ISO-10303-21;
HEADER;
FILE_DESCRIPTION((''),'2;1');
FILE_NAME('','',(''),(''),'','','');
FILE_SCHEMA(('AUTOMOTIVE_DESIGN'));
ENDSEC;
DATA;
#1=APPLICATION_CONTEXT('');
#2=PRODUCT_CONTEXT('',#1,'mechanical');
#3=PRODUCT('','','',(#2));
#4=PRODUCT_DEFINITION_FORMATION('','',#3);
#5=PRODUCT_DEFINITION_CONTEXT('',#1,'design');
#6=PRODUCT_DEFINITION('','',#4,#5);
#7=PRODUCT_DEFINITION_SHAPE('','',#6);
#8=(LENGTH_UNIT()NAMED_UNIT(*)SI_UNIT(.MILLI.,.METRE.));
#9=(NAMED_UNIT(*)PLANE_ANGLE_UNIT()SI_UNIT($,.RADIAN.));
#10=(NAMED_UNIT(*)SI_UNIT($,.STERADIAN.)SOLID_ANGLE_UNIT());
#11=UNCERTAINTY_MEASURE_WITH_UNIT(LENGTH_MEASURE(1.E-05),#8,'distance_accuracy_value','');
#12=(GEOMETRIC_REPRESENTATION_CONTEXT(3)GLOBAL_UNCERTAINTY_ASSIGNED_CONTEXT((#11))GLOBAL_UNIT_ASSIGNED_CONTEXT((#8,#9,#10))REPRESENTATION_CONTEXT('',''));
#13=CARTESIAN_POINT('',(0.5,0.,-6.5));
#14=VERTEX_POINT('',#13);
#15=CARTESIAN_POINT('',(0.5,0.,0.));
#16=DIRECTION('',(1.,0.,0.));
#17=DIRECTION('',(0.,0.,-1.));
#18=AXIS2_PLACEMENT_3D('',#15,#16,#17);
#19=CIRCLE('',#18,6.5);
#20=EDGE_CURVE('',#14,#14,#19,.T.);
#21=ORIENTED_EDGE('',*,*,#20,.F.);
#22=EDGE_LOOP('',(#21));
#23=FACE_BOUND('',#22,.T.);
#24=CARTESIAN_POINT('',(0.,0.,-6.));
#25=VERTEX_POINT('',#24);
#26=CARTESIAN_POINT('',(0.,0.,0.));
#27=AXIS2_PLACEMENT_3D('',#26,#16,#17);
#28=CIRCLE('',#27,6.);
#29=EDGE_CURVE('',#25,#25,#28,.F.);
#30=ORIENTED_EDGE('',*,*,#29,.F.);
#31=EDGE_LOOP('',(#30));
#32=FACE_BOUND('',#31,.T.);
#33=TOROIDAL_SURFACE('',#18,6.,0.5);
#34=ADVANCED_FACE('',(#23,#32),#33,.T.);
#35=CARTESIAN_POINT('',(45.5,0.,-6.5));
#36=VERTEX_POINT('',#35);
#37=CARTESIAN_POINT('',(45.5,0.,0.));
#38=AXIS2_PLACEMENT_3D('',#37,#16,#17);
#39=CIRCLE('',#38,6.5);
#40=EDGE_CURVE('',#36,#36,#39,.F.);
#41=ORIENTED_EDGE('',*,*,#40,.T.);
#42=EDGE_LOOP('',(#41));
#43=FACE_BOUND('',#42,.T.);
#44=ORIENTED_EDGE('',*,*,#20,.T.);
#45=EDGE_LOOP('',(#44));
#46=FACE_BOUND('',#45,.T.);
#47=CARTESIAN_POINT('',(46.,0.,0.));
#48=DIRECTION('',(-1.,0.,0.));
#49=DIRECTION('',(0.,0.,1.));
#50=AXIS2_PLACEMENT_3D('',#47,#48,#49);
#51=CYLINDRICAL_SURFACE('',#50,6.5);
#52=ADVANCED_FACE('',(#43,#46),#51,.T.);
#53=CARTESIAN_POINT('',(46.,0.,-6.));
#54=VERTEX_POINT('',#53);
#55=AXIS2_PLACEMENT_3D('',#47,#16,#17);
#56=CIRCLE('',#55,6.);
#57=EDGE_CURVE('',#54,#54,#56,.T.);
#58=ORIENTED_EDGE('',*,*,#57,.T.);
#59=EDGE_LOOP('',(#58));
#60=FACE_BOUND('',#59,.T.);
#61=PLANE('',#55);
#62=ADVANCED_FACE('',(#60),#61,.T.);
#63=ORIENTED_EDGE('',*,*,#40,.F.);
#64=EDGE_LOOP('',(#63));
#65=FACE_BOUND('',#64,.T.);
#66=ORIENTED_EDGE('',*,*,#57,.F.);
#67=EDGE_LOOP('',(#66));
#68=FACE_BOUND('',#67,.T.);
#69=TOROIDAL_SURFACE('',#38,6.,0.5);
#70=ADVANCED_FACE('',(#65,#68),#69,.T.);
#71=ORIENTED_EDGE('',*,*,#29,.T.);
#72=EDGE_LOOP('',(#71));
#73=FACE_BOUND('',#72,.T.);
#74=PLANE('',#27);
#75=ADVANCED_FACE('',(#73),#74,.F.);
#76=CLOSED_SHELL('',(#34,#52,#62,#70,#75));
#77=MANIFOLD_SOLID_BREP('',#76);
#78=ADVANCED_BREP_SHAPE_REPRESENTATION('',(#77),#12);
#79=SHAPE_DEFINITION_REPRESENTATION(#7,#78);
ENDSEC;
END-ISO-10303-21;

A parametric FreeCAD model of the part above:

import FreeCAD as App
import Part
import Sketcher
from FreeCAD import Vector


def edges_at(feature, points):
    """Names of the edges that pass closest to the given points."""
    edges = feature.Shape.Edges
    near = lambda p: min(range(len(edges)), key=lambda i: edges[i].distToShape(Part.Vertex(*p))[0])
    return sorted({f"Edge{near(p) + 1}" for p in points})

doc = App.newDocument("Part")
body = doc.addObject("PartDesign::Body", "Body")

# Sketch on YZ plane
sketch1 = body.newObject("Sketcher::SketchObject", "Sketch")
sketch1.AttachmentSupport = (doc.getObject("YZ_Plane"), [""])
sketch1.MapMode = "FlatFace"
sketch1.addGeometry(Part.Circle(Vector(0, 0, 0), Vector(0, 0, 1), 6.5), False)
sketch1.addConstraint(Sketcher.Constraint("Coincident", 0, 3, -1, 1))
sketch1.addConstraint(Sketcher.Constraint("Diameter", 0, 13.0))
pad1 = body.newObject("PartDesign::Pad", "Pad")
pad1.Profile = sketch1
pad1.Length = 46
doc.recompute()

fillet = body.newObject("PartDesign::Fillet", "Fillet")
fillet.Base = (pad1, edges_at(pad1, [(0, 0, 6.5), (46, 0, 6.5)]))
fillet.Radius = 0.5

doc.recompute()
